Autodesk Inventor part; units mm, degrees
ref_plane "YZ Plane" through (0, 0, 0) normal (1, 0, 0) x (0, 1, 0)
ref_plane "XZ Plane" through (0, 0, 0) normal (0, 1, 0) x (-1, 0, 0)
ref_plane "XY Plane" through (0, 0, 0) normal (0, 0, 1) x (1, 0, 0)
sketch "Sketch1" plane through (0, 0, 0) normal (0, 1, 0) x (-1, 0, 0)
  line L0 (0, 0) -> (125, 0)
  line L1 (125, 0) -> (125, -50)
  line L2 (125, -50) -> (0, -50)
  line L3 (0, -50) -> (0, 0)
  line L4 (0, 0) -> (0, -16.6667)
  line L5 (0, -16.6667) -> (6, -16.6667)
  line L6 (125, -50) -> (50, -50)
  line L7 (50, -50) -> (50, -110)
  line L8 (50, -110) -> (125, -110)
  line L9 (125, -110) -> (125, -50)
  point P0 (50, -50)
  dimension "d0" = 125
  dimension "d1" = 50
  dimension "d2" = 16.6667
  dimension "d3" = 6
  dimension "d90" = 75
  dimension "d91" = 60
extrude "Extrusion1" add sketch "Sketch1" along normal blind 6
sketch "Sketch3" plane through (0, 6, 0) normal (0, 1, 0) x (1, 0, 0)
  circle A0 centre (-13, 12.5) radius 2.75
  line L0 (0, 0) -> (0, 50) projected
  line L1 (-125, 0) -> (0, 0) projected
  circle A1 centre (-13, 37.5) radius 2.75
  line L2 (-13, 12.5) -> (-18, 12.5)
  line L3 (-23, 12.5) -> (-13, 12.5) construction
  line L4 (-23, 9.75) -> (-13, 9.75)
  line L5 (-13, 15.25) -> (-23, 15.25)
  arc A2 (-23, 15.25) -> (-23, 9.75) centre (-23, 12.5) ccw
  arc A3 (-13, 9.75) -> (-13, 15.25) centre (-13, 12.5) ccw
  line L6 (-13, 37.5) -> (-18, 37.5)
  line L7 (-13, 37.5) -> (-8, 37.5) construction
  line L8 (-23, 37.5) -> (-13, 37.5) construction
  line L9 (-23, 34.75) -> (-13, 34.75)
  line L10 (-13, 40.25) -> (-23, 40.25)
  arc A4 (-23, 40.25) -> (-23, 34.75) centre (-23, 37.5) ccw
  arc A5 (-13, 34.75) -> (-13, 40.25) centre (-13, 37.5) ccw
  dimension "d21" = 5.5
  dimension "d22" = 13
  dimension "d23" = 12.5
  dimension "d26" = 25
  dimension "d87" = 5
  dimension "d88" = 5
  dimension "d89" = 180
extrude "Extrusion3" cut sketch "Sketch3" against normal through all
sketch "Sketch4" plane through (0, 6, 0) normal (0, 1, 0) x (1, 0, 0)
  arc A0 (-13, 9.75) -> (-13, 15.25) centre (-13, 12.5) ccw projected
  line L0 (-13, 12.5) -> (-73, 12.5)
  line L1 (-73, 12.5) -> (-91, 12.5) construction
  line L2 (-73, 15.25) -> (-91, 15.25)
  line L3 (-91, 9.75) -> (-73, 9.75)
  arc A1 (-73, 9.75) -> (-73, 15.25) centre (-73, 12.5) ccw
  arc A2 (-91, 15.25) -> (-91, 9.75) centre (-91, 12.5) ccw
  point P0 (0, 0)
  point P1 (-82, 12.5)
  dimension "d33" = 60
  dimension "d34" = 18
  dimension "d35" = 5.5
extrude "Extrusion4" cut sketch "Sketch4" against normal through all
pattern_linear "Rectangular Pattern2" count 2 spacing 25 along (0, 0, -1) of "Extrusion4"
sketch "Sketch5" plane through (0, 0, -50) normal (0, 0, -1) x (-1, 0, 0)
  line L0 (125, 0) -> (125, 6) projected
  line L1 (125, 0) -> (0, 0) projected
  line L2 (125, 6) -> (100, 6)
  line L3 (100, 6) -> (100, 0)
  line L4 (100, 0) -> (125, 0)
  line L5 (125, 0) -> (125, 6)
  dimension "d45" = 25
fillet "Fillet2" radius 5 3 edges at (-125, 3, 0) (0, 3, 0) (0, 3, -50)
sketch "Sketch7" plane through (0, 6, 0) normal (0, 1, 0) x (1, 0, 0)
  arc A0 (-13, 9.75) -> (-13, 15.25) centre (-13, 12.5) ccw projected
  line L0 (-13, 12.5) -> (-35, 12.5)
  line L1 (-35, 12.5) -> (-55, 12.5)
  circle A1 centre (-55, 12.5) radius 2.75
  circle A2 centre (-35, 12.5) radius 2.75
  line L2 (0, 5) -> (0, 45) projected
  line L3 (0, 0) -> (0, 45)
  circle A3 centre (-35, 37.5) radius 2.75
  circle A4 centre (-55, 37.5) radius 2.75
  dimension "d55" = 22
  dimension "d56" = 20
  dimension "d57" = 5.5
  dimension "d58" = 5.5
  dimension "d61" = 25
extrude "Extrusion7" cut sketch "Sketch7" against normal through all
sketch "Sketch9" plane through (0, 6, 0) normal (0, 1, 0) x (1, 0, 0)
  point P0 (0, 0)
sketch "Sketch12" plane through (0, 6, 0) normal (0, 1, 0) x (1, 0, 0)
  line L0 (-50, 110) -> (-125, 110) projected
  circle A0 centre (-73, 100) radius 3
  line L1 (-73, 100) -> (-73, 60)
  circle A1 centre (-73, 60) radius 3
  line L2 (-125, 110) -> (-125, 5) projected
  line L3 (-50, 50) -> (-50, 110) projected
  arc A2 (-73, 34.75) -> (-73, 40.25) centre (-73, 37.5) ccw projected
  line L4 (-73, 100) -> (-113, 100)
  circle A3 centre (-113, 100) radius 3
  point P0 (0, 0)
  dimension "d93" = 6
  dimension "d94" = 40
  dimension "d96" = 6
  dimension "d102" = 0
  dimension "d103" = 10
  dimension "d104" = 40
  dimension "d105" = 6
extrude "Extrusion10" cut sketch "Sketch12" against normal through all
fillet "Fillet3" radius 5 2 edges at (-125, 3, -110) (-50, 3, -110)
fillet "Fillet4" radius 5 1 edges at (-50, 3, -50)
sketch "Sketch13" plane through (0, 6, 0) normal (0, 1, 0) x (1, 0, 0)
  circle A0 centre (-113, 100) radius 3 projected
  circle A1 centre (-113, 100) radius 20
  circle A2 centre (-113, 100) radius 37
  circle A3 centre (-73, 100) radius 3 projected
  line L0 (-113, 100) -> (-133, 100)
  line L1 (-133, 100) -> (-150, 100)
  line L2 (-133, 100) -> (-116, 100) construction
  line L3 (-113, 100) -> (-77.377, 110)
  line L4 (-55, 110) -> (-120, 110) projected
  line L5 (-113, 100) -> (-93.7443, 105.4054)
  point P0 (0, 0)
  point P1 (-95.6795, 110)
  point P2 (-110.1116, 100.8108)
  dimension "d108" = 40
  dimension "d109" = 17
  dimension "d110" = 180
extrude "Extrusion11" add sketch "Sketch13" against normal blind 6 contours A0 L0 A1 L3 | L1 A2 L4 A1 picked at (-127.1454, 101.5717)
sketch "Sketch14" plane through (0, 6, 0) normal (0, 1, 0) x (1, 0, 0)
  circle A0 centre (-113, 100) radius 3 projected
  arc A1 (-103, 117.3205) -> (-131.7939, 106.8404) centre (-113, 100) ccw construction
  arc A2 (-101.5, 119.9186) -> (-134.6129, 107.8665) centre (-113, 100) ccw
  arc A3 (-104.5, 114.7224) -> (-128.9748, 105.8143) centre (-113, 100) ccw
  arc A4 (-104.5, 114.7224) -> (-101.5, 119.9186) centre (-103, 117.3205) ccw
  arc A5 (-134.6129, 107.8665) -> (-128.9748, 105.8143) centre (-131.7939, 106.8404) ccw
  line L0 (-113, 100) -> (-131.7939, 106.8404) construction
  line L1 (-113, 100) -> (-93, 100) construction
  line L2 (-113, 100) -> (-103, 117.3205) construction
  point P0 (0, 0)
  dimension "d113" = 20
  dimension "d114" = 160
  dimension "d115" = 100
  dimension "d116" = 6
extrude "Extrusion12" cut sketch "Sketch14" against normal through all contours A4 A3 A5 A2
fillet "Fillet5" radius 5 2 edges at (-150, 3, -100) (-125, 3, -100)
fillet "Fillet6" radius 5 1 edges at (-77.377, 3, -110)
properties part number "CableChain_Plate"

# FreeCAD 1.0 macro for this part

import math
import FreeCAD as App
import Part
import Sketcher
Q = App.Units.Quantity


def edges_at(feature, points):
    """Names of the edges that pass closest to the given points."""
    edges = feature.Shape.Edges
    near = lambda p: min(range(len(edges)), key=lambda i: edges[i].distToShape(Part.Vertex(*p))[0])
    return sorted({f"Edge{near(p) + 1}" for p in points})


def add_polygon(sketch, points):
    """Adds a closed chain of lines whose ends are joined by coincident constraints."""
    first, n = sketch.GeometryCount, len(points)
    for a, b in zip(points, points[1:] + points[:1]):
        sketch.addGeometry(Part.LineSegment(App.Vector(*a, 0), App.Vector(*b, 0)), False)
    for i in range(n):
        sketch.addConstraint(Sketcher.Constraint("Coincident", first + i, 2, first + (i + 1) % n, 1))

doc = App.newDocument("Part")
params = doc.addObject("Spreadsheet::Sheet", "Params")
for row, (alias, value) in enumerate([
    ("sketch1_width", "125 mm"),
    ("sketch1_width2", "50 mm"),
    ("sketch1_height", "60 mm"),
    ("pad1_length", "6 mm"),
    ("sketch2_width", "10 mm"),
    ("sketch2_radius", "2.75 mm"),
    ("sketch3_width", "18 mm"),
    ("sketch3_radius", "2.75 mm"),
    ("linearpattern_pitch", "25 mm"),
    ("fillet_radius", "5 mm"),
    ("sketch4_diameter", "5.5 mm"),
    ("sketch5_diameter", "6 mm"),
    ("fillet2_radius", "5 mm"),
    ("fillet3_radius", "5 mm"),
    ("sketch6_radius", "20 mm"),
    ("sketch6_length", "17 mm"),
    ("sketch6_radius2", "37 mm"),
    ("pad2_length", "6 mm"),
    ("sketch7_radius", "3 mm"),
    ("sketch7_radius2", "23 mm"),
    ("fillet4_radius", "5 mm"),
    ("fillet5_radius", "5 mm"),
], start=1):
    params.set(f"A{row}", alias)
    params.set(f"B{row}", "=" + value)
    params.setAlias(f"B{row}", alias)

body = doc.addObject("PartDesign::Body", "Body")

# Sketch on XZ plane
sketch1 = body.newObject("Sketcher::SketchObject", "Sketch")
sketch1.AttachmentSupport = (doc.getObject("XZ_Plane"), [""])
sketch1.MapMode = "FlatFace"
add_polygon(sketch1, [(-125, 0), (0, 0), (0, -50), (-50, -50), (-50, -110), (-125, -110)])  # lines 0-5
sketch1.addConstraint(Sketcher.Constraint("Horizontal", 0))
sketch1.addConstraint(Sketcher.Constraint("Vertical", 1))
sketch1.addConstraint(Sketcher.Constraint("Horizontal", 2))
sketch1.addConstraint(Sketcher.Constraint("Vertical", 3))
sketch1.addConstraint(Sketcher.Constraint("Horizontal", 4))
sketch1.addConstraint(Sketcher.Constraint("Vertical", 5))
sketch1.addConstraint(Sketcher.Constraint("Coincident", 0, 2, -1, 1))
sketch1.addConstraint(Sketcher.Constraint("Equal", 2, 1))
sketch1.addConstraint(Sketcher.Constraint("DistanceX", 0, 1, 0, 2, 125.0))
sketch1.addConstraint(Sketcher.Constraint("DistanceX", 2, 2, 2, 1, 50.0))
sketch1.addConstraint(Sketcher.Constraint("DistanceY", 3, 2, 3, 1, 60.0))
sketch1.setExpression("Constraints[14]", "Params.sketch1_width")
sketch1.setExpression("Constraints[15]", "Params.sketch1_width2")
sketch1.setExpression("Constraints[16]", "Params.sketch1_height")
pad1 = body.newObject("PartDesign::Pad", "Pad")
pad1.Profile = sketch1
pad1.setExpression("Length", "Params.pad1_length")
pad1.Reversed = True

# Sketch on XZ plane
sketch2 = body.newObject("Sketcher::SketchObject", "Sketch001")
sketch2.AttachmentSupport = (doc.getObject("XZ_Plane"), [""])
sketch2.MapMode = "FlatFace"
sketch2.AttachmentOffset = App.Placement(App.Vector(0, 0, -6), App.Rotation())
sketch2.addGeometry(Part.ArcOfCircle(Part.Circle(App.Vector(-13, -12.5, 0), App.Vector(0, 0, 1), 2.8), math.radians(-90), math.radians(90)), False)
sketch2.addGeometry(Part.LineSegment(App.Vector(-13, -15.2, 0), App.Vector(-23, -15.2, 0)), False)
sketch2.addGeometry(Part.ArcOfCircle(Part.Circle(App.Vector(-23, -12.5, 0), App.Vector(0, 0, 1), 2.8), math.radians(90), math.radians(270)), False)
sketch2.addGeometry(Part.LineSegment(App.Vector(-23, -9.8, 0), App.Vector(-13, -9.8, 0)), False)
sketch2.addGeometry(Part.ArcOfCircle(Part.Circle(App.Vector(-13, -37.5, 0), App.Vector(0, 0, 1), 2.8), math.radians(-90), math.radians(90)), False)
sketch2.addGeometry(Part.LineSegment(App.Vector(-13, -40.2, 0), App.Vector(-23, -40.2, 0)), False)
sketch2.addGeometry(Part.ArcOfCircle(Part.Circle(App.Vector(-23, -37.5, 0), App.Vector(0, 0, 1), 2.8), math.radians(90), math.radians(270)), False)
sketch2.addGeometry(Part.LineSegment(App.Vector(-23, -34.8, 0), App.Vector(-13, -34.8, 0)), False)
sketch2.addConstraint(Sketcher.Constraint("Tangent", 0, 1, 1, 1))
sketch2.addConstraint(Sketcher.Constraint("Tangent", 1, 2, 2, 2))
sketch2.addConstraint(Sketcher.Constraint("Tangent", 2, 1, 3, 1))
sketch2.addConstraint(Sketcher.Constraint("Tangent", 3, 2, 0, 2))
sketch2.addConstraint(Sketcher.Constraint("Tangent", 4, 1, 5, 1))
sketch2.addConstraint(Sketcher.Constraint("Tangent", 5, 2, 6, 2))
sketch2.addConstraint(Sketcher.Constraint("Tangent", 6, 1, 7, 1))
sketch2.addConstraint(Sketcher.Constraint("Tangent", 7, 2, 4, 2))
sketch2.addConstraint(Sketcher.Constraint("Horizontal", 1))
sketch2.addConstraint(Sketcher.Constraint("Horizontal", 3))
sketch2.addConstraint(Sketcher.Constraint("Horizontal", 5))
sketch2.addConstraint(Sketcher.Constraint("Horizontal", 7))
sketch2.addConstraint(Sketcher.Constraint("Equal", 2, 4))
sketch2.addConstraint(Sketcher.Constraint("Vertical", 0, 3, 4, 3))
sketch2.addConstraint(Sketcher.Constraint("Vertical", 2, 3, 6, 3))
sketch2.addConstraint(Sketcher.Constraint("DistanceX", 1, 2, 1, 1, 10.0))
sketch2.addConstraint(Sketcher.Constraint("Radius", 0, 2.75))
sketch2.addConstraint(Sketcher.Constraint("DistanceX", 0, 3, -1, 1, 13.0))
sketch2.addConstraint(Sketcher.Constraint("DistanceY", 4, 3, 0, 3, 25.0))
sketch2.addConstraint(Sketcher.Constraint("DistanceY", 0, 3, -1, 1, 12.5))
sketch2.setExpression("Constraints[15]", "Params.sketch2_width")
sketch2.setExpression("Constraints[16]", "Params.sketch2_radius")
pocket1 = body.newObject("PartDesign::Pocket", "Pocket")
pocket1.Profile = sketch2
pocket1.Type = "ThroughAll"
pocket1.Reversed = True

# Sketch on XZ plane
sketch3 = body.newObject("Sketcher::SketchObject", "Sketch002")
sketch3.AttachmentSupport = (doc.getObject("XZ_Plane"), [""])
sketch3.MapMode = "FlatFace"
sketch3.AttachmentOffset = App.Placement(App.Vector(0, 0, -6), App.Rotation())
sketch3.addGeometry(Part.ArcOfCircle(Part.Circle(App.Vector(-73, -12.5, 0), App.Vector(0, 0, 1), 2.8), math.radians(-90), math.radians(90)), False)
sketch3.addGeometry(Part.LineSegment(App.Vector(-73, -15.2, 0), App.Vector(-91, -15.2, 0)), False)
sketch3.addGeometry(Part.ArcOfCircle(Part.Circle(App.Vector(-91, -12.5, 0), App.Vector(0, 0, 1), 2.8), math.radians(90), math.radians(270)), False)
sketch3.addGeometry(Part.LineSegment(App.Vector(-91, -9.8, 0), App.Vector(-73, -9.8, 0)), False)
sketch3.addConstraint(Sketcher.Constraint("Tangent", 0, 1, 1, 1))
sketch3.addConstraint(Sketcher.Constraint("Tangent", 1, 2, 2, 2))
sketch3.addConstraint(Sketcher.Constraint("Tangent", 2, 1, 3, 1))
sketch3.addConstraint(Sketcher.Constraint("Tangent", 3, 2, 0, 2))
sketch3.addConstraint(Sketcher.Constraint("Horizontal", 1))
sketch3.addConstraint(Sketcher.Constraint("Horizontal", 3))
sketch3.addConstraint(Sketcher.Constraint("DistanceX", 1, 2, 1, 1, 18.0))
sketch3.addConstraint(Sketcher.Constraint("Radius", 0, 2.75))
sketch3.addConstraint(Sketcher.Constraint("DistanceX", 0, 3, -1, 1, 73.0))
sketch3.addConstraint(Sketcher.Constraint("DistanceY", 0, 3, -1, 1, 12.5))
sketch3.setExpression("Constraints[6]", "Params.sketch3_width")
sketch3.setExpression("Constraints[7]", "Params.sketch3_radius")
pocket2 = body.newObject("PartDesign::Pocket", "Pocket001")
pocket2.Profile = sketch3
pocket2.Type = "ThroughAll"
pocket2.Reversed = True
doc.recompute()

linearpattern = body.newObject("PartDesign::LinearPattern", "LinearPattern")
linearpattern.Originals = [pocket2]
linearpattern.Direction = (doc.getObject("Z_Axis"), [""])
linearpattern.Mode = "offset"
linearpattern.setExpression("Offset", "Params.linearpattern_pitch")
linearpattern.Occurrences = 2
linearpattern.Reversed = True
body.Tip = linearpattern
doc.recompute()

fillet = body.newObject("PartDesign::Fillet", "Fillet")
fillet.Base = (linearpattern, edges_at(linearpattern, [(-125, 3, 0), (0, 3, 0), (0, 3, -50)]))
fillet.setExpression("Radius", "Params.fillet_radius")

# Sketch on XZ plane
sketch4 = body.newObject("Sketcher::SketchObject", "Sketch003")
sketch4.AttachmentSupport = (doc.getObject("XZ_Plane"), [""])
sketch4.MapMode = "FlatFace"
sketch4.AttachmentOffset = App.Placement(App.Vector(0, 0, -6), App.Rotation())
sketch4.addGeometry(Part.Circle(App.Vector(-35, -12.5, 0), App.Vector(0, 0, 1), 2.8), False)
sketch4.addGeometry(Part.Circle(App.Vector(-55, -12.5, 0), App.Vector(0, 0, 1), 2.8), False)
sketch4.addGeometry(Part.Circle(App.Vector(-35, -37.5, 0), App.Vector(0, 0, 1), 2.8), False)
sketch4.addGeometry(Part.Circle(App.Vector(-55, -37.5, 0), App.Vector(0, 0, 1), 2.8), False)
sketch4.addConstraint(Sketcher.Constraint("Equal", 0, 1))
sketch4.addConstraint(Sketcher.Constraint("Equal", 1, 2))
sketch4.addConstraint(Sketcher.Constraint("Equal", 2, 3))
sketch4.addConstraint(Sketcher.Constraint("Horizontal", 0, 3, 1, 3))
sketch4.addConstraint(Sketcher.Constraint("Horizontal", 2, 3, 3, 3))
sketch4.addConstraint(Sketcher.Constraint("Vertical", 0, 3, 2, 3))
sketch4.addConstraint(Sketcher.Constraint("Vertical", 1, 3, 3, 3))
sketch4.addConstraint(Sketcher.Constraint("Diameter", 0, 5.5))
sketch4.addConstraint(Sketcher.Constraint("DistanceX", 1, 3, 0, 3, 20.0))
sketch4.addConstraint(Sketcher.Constraint("DistanceY", 2, 3, 0, 3, 25.0))
sketch4.addConstraint(Sketcher.Constraint("DistanceX", 0, 3, -1, 1, 35.0))
sketch4.addConstraint(Sketcher.Constraint("DistanceY", 0, 3, -1, 1, 12.5))
sketch4.setExpression("Constraints[7]", "Params.sketch4_diameter")
pocket3 = body.newObject("PartDesign::Pocket", "Pocket002")
pocket3.Profile = sketch4
pocket3.Type = "ThroughAll"
pocket3.Reversed = True

# Sketch on XZ plane
sketch5 = body.newObject("Sketcher::SketchObject", "Sketch004")
sketch5.AttachmentSupport = (doc.getObject("XZ_Plane"), [""])
sketch5.MapMode = "FlatFace"
sketch5.AttachmentOffset = App.Placement(App.Vector(0, 0, -6), App.Rotation())
sketch5.addGeometry(Part.Circle(App.Vector(-73, -100, 0), App.Vector(0, 0, 1), 3), False)
sketch5.addGeometry(Part.Circle(App.Vector(-73, -60, 0), App.Vector(0, 0, 1), 3), False)
sketch5.addGeometry(Part.Circle(App.Vector(-113, -100, 0), App.Vector(0, 0, 1), 3), False)
sketch5.addConstraint(Sketcher.Constraint("Equal", 0, 1))
sketch5.addConstraint(Sketcher.Constraint("Equal", 1, 2))
sketch5.addConstraint(Sketcher.Constraint("Horizontal", 0, 3, 2, 3))
sketch5.addConstraint(Sketcher.Constraint("Vertical", 0, 3, 1, 3))
sketch5.addConstraint(Sketcher.Constraint("Diameter", 0, 6.0))
sketch5.addConstraint(Sketcher.Constraint("DistanceY", 0, 3, 1, 3, 40.0))
sketch5.addConstraint(Sketcher.Constraint("DistanceX", 2, 3, 0, 3, 40.0))
sketch5.addConstraint(Sketcher.Constraint("DistanceX", 0, 3, -1, 1, 73.0))
sketch5.addConstraint(Sketcher.Constraint("DistanceY", 0, 3, -1, 1, 100.0))
sketch5.setExpression("Constraints[4]", "Params.sketch5_diameter")
pocket4 = body.newObject("PartDesign::Pocket", "Pocket003")
pocket4.Profile = sketch5
pocket4.Type = "ThroughAll"
pocket4.Reversed = True
doc.recompute()

fillet2 = body.newObject("PartDesign::Fillet", "Fillet001")
fillet2.Base = (pocket4, edges_at(pocket4, [(-125, 3, -110), (-50, 3, -110)]))
fillet2.setExpression("Radius", "Params.fillet2_radius")
doc.recompute()

fillet3 = body.newObject("PartDesign::Fillet", "Fillet002")
fillet3.Base = (fillet2, edges_at(fillet2, [(-50, 3, -50)]))
fillet3.setExpression("Radius", "Params.fillet3_radius")

# Sketch on XZ plane
sketch6 = body.newObject("Sketcher::SketchObject", "Sketch005")
sketch6.AttachmentSupport = (doc.getObject("XZ_Plane"), [""])
sketch6.MapMode = "FlatFace"
sketch6.AttachmentOffset = App.Placement(App.Vector(0, 0, -6), App.Rotation())
sketch6.addGeometry(Part.ArcOfCircle(Part.Circle(App.Vector(-113, -100, 0), App.Vector(0, 0, 1), 3), math.radians(180), math.radians(344)), False)
sketch6.addGeometry(Part.LineSegment(App.Vector(-110.1, -100.8, 0), App.Vector(-93.7, -105.4, 0)), False)
sketch6.addGeometry(Part.ArcOfCircle(Part.Circle(App.Vector(-113, -100, 0), App.Vector(0, 0, 1), 20), math.radians(-30), math.radians(-15.68)), False)
sketch6.addGeometry(Part.LineSegment(App.Vector(-95.7, -110, 0), App.Vector(-77.4, -110, 0)), False)
sketch6.addGeometry(Part.ArcOfCircle(Part.Circle(App.Vector(-113, -100, 0), App.Vector(0, 0, 1), 37), math.radians(180), math.radians(344)), False)
sketch6.addGeometry(Part.LineSegment(App.Vector(-150, -100, 0), App.Vector(-116, -100, 0)), False)
sketch6.addConstraint(Sketcher.Constraint("Coincident", 0, 2, 1, 1))
sketch6.addConstraint(Sketcher.Constraint("Coincident", 1, 2, 2, 2))
sketch6.addConstraint(Sketcher.Constraint("Coincident", 2, 1, 3, 1))
sketch6.addConstraint(Sketcher.Constraint("Coincident", 3, 2, 4, 2))
sketch6.addConstraint(Sketcher.Constraint("Coincident", 4, 1, 5, 1))
sketch6.addConstraint(Sketcher.Constraint("Coincident", 5, 2, 0, 1))
sketch6.addConstraint(Sketcher.Constraint("Horizontal", 3))
sketch6.addConstraint(Sketcher.Constraint("Horizontal", 5))
sketch6.addConstraint(Sketcher.Constraint("Coincident", 2, 3, 0, 3))
sketch6.addConstraint(Sketcher.Constraint("Coincident", 4, 3, 0, 3))
sketch6.addConstraint(Sketcher.Constraint("Horizontal", 2, 3, 4, 1))
sketch6.addConstraint(Sketcher.Constraint("Radius", 2, 20.0))
sketch6.addConstraint(Sketcher.Constraint("Distance", 1, 17.0))
sketch6.addConstraint(Sketcher.Constraint("Radius", 4, 37.0))
sketch6.addConstraint(Sketcher.Constraint("DistanceX", 0, 3, -1, 1, 113.0))
sketch6.addConstraint(Sketcher.Constraint("DistanceY", 0, 3, -1, 1, 100.0))
sketch6.addConstraint(Sketcher.Constraint("DistanceY", 2, 1, -1, 1, 110.0))
sketch6.addConstraint(Sketcher.Constraint("Angle", 1, Q("-15.6804 deg")))
sketch6.addConstraint(Sketcher.Constraint("DistanceX", 0, 2, -1, 1, 110.1116))
sketch6.setExpression("Constraints[11]", "Params.sketch6_radius")
sketch6.setExpression("Constraints[12]", "Params.sketch6_length")
sketch6.setExpression("Constraints[13]", "Params.sketch6_radius2")
pad2 = body.newObject("PartDesign::Pad", "Pad001")
pad2.Profile = sketch6
pad2.setExpression("Length", "Params.pad2_length")

# Sketch on XZ plane
sketch7 = body.newObject("Sketcher::SketchObject", "Sketch006")
sketch7.AttachmentSupport = (doc.getObject("XZ_Plane"), [""])
sketch7.MapMode = "FlatFace"
sketch7.AttachmentOffset = App.Placement(App.Vector(0, 0, -6), App.Rotation())
sketch7.addGeometry(Part.ArcOfCircle(Part.Circle(App.Vector(-103, -117.3, 0), App.Vector(0, 0, 1), 3), math.radians(-60), math.radians(120)), False)
sketch7.addGeometry(Part.ArcOfCircle(Part.Circle(App.Vector(-113, -100, 0), App.Vector(0, 0, 1), 23), math.radians(-160), math.radians(-60)), False)
sketch7.addGeometry(Part.ArcOfCircle(Part.Circle(App.Vector(-131.8, -106.8, 0), App.Vector(0, 0, 1), 3), math.radians(20), math.radians(200)), False)
sketch7.addGeometry(Part.ArcOfCircle(Part.Circle(App.Vector(-113, -100, 0), App.Vector(0, 0, 1), 17), math.radians(-160), math.radians(-60)), False)
sketch7.addConstraint(Sketcher.Constraint("Tangent", 0, 1, 1, 2))
sketch7.addConstraint(Sketcher.Constraint("Tangent", 1, 1, 2, 2))
sketch7.addConstraint(Sketcher.Constraint("Tangent", 2, 1, 3, 1))
sketch7.addConstraint(Sketcher.Constraint("Tangent", 3, 2, 0, 2))
sketch7.addConstraint(Sketcher.Constraint("Coincident", 3, 3, 1, 3))
sketch7.addConstraint(Sketcher.Constraint("Radius", 0, 3.0))
sketch7.addConstraint(Sketcher.Constraint("DistanceY", 1, 3, -1, 1, 100.0))
sketch7.addConstraint(Sketcher.Constraint("Radius", 1, 23.0))
sketch7.addConstraint(Sketcher.Constraint("DistanceX", 0, 3, -1, 1, 103.0))
sketch7.addConstraint(Sketcher.Constraint("DistanceX", 1, 3, -1, 1, 113.0))
sketch7.addConstraint(Sketcher.Constraint("DistanceY", 0, 3, 2, 3, 10.48))
sketch7.setExpression("Constraints[5]", "Params.sketch7_radius")
sketch7.setExpression("Constraints[7]", "Params.sketch7_radius2")
pocket5 = body.newObject("PartDesign::Pocket", "Pocket004")
pocket5.Profile = sketch7
pocket5.Type = "ThroughAll"
pocket5.Reversed = True
doc.recompute()

fillet4 = body.newObject("PartDesign::Fillet", "Fillet003")
fillet4.Base = (pocket5, edges_at(pocket5, [(-150, 3, -100), (-125, 3, -100)]))
fillet4.setExpression("Radius", "Params.fillet4_radius")
doc.recompute()

fillet5 = body.newObject("PartDesign::Fillet", "Fillet004")
fillet5.Base = (fillet4, edges_at(fillet4, [(-77.377, 3, -110)]))
fillet5.setExpression("Radius", "Params.fillet5_radius")

doc.recompute()
